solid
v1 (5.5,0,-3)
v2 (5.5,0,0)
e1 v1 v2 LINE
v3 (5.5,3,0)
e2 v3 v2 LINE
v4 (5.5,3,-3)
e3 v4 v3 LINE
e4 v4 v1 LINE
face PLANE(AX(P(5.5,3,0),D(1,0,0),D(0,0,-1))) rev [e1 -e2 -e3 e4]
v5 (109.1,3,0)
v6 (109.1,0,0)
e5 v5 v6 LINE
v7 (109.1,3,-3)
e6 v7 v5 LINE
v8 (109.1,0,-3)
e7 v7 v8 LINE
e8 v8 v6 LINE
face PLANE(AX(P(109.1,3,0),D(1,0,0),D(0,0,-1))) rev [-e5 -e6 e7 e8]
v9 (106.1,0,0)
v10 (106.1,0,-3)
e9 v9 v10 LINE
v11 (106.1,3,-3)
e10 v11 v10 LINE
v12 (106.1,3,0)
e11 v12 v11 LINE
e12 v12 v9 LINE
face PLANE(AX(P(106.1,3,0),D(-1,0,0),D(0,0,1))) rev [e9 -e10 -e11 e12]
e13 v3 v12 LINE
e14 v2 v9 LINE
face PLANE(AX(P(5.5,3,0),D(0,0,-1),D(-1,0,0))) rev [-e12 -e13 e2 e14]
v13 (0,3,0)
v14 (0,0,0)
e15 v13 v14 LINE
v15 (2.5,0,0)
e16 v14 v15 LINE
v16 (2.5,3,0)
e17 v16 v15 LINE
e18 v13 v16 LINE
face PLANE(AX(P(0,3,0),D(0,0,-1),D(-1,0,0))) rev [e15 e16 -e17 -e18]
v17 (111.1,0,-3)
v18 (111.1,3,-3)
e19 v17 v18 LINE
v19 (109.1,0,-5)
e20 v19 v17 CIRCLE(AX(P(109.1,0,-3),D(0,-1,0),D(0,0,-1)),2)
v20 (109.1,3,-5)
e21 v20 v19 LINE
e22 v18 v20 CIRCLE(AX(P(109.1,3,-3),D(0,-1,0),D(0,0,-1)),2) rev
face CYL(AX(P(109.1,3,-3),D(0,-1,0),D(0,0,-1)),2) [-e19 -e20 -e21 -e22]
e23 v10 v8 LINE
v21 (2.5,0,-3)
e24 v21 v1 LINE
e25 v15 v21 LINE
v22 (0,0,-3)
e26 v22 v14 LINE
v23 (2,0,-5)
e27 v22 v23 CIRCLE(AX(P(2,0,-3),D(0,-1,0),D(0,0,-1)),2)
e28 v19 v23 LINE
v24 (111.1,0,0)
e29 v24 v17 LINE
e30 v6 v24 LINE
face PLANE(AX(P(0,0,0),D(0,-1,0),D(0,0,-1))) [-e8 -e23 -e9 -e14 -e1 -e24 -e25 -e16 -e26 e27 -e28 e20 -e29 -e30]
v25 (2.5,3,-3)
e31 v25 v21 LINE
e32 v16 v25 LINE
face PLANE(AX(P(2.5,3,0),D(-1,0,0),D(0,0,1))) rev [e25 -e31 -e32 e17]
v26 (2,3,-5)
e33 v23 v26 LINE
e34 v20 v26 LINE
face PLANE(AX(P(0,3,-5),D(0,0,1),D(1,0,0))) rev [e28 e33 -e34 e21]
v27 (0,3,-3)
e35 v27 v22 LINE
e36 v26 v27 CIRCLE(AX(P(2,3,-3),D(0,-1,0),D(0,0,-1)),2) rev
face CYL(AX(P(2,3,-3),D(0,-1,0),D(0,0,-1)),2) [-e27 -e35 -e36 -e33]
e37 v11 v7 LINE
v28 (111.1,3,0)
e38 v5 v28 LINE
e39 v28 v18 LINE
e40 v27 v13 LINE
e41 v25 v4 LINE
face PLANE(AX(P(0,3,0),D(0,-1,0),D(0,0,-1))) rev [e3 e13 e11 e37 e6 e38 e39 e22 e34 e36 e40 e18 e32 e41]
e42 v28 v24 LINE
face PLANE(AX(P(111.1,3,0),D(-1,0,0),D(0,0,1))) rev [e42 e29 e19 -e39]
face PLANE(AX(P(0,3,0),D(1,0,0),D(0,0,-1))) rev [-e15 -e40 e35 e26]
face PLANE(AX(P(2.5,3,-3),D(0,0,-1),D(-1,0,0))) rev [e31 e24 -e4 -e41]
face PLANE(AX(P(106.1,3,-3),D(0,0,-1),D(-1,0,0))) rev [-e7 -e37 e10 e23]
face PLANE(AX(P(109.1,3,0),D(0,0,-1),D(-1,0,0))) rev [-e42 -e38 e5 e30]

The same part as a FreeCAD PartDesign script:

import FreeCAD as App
import Part
import Sketcher

V = App.Vector
Q = App.Units.Quantity


def edges_at(feature, points):
    """Names of the edges that pass closest to the given points."""
    edges = feature.Shape.Edges
    near = lambda p: min(range(len(edges)), key=lambda i: edges[i].distToShape(Part.Vertex(*p))[0])
    return sorted({f"Edge{near(p) + 1}" for p in points})

doc = App.newDocument("Part")
params = doc.addObject("Spreadsheet::Sheet", "Params")
for row, (alias, value) in enumerate([
    ("sketch1_width", "3 mm"),
    ("sketch1_width2", "2 mm"),
    ("sketch1_height", "5 mm"),
    ("sketch1_width3", "2.5 mm"),
    ("sketch1_width4", "100.6 mm"),
    ("pad1_length", "3 mm"),
    ("fillet_radius", "2 mm"),
], start=1):
    params.set(f"A{row}", alias)
    params.set(f"B{row}", "=" + value)
    params.setAlias(f"B{row}", alias)

body = doc.addObject("PartDesign::Body", "Body")

sketch1 = body.newObject("Sketcher::SketchObject", "Sketch")
sketch1.AttachmentSupport = (doc.getObject("XZ_Plane"), [""])
sketch1.MapMode = "FlatFace"
sketch1.addGeometry([
    Part.LineSegment(V(0, 0, 0), V(2.5, 0, 0)),
    Part.LineSegment(V(2.5, 0, 0), V(2.5, -3, 0)),
    Part.LineSegment(V(2.5, -3, 0), V(5.5, -3, 0)),
    Part.LineSegment(V(5.5, -3, 0), V(5.5, 0, 0)),
    Part.LineSegment(V(5.5, 0, 0), V(106.1, 0, 0)),
    Part.LineSegment(V(106.1, 0, 0), V(106.1, -3, 0)),
    Part.LineSegment(V(106.1, -3, 0), V(109.1, -3, 0)),
    Part.LineSegment(V(109.1, -3, 0), V(109.1, 0, 0)),
    Part.LineSegment(V(109.1, 0, 0), V(111.1, 0, 0)),
    Part.LineSegment(V(111.1, 0, 0), V(111.1, -5, 0)),
    Part.LineSegment(V(111.1, -5, 0), V(0, -5, 0)),
    Part.LineSegment(V(0, -5, 0), V(0, 0, 0)),
], False)
sketch1.addConstraint([
    Sketcher.Constraint("Coincident", 0, 2, 1, 1),
    Sketcher.Constraint("Coincident", 1, 2, 2, 1),
    Sketcher.Constraint("Coincident", 2, 2, 3, 1),
    Sketcher.Constraint("Coincident", 3, 2, 4, 1),
    Sketcher.Constraint("Coincident", 4, 2, 5, 1),
    Sketcher.Constraint("Coincident", 5, 2, 6, 1),
    Sketcher.Constraint("Coincident", 6, 2, 7, 1),
    Sketcher.Constraint("Coincident", 7, 2, 8, 1),
    Sketcher.Constraint("Coincident", 8, 2, 9, 1),
    Sketcher.Constraint("Coincident", 9, 2, 10, 1),
    Sketcher.Constraint("Coincident", 10, 2, 11, 1),
    Sketcher.Constraint("Coincident", 11, 2, 0, 1),
    Sketcher.Constraint("Horizontal", 0),
    Sketcher.Constraint("Vertical", 1),
    Sketcher.Constraint("Horizontal", 2),
    Sketcher.Constraint("Vertical", 3),
    Sketcher.Constraint("Horizontal", 4),
    Sketcher.Constraint("Vertical", 5),
    Sketcher.Constraint("Horizontal", 6),
    Sketcher.Constraint("Vertical", 7),
    Sketcher.Constraint("Horizontal", 8),
    Sketcher.Constraint("Vertical", 9),
    Sketcher.Constraint("Horizontal", 10),
    Sketcher.Constraint("Vertical", 11),
    Sketcher.Constraint("Coincident", 11, 2, -1, 1),
    Sketcher.Constraint("PointOnObject", 3, 2, -1),
    Sketcher.Constraint("PointOnObject", 7, 2, -1),
    Sketcher.Constraint("Horizontal", 2, 2, 5, 2),
    Sketcher.Constraint("Equal", 2, 6),
    Sketcher.Constraint("Equal", 6, 1),
    Sketcher.Constraint("DistanceX", 2, 1, 2, 2, Q("3 mm")),
    Sketcher.Constraint("DistanceX", 8, 1, 8, 2, Q("2 mm")),
    Sketcher.Constraint("DistanceY", 9, 2, 9, 1, Q("5 mm")),
    Sketcher.Constraint("DistanceX", 0, 1, 0, 2, Q("2.5 mm")),
    Sketcher.Constraint("DistanceX", 4, 1, 4, 2, Q("100.6 mm")),
])
sketch1.setExpression("Constraints[30]", "Params.sketch1_width")
sketch1.setExpression("Constraints[31]", "Params.sketch1_width2")
sketch1.setExpression("Constraints[32]", "Params.sketch1_height")
sketch1.setExpression("Constraints[33]", "Params.sketch1_width3")
sketch1.setExpression("Constraints[34]", "Params.sketch1_width4")
pad1 = body.newObject("PartDesign::Pad", "Pad")
pad1.Profile = sketch1
pad1.setExpression("Length", "Params.pad1_length")
pad1.Reversed = True
doc.recompute()

fillet = body.newObject("PartDesign::Fillet", "Fillet")
fillet.Base = (pad1, edges_at(pad1, [(0, 1.5, -5), (111.1, 1.5, -5)]))
fillet.setExpression("Radius", "Params.fillet_radius")

doc.recompute()
